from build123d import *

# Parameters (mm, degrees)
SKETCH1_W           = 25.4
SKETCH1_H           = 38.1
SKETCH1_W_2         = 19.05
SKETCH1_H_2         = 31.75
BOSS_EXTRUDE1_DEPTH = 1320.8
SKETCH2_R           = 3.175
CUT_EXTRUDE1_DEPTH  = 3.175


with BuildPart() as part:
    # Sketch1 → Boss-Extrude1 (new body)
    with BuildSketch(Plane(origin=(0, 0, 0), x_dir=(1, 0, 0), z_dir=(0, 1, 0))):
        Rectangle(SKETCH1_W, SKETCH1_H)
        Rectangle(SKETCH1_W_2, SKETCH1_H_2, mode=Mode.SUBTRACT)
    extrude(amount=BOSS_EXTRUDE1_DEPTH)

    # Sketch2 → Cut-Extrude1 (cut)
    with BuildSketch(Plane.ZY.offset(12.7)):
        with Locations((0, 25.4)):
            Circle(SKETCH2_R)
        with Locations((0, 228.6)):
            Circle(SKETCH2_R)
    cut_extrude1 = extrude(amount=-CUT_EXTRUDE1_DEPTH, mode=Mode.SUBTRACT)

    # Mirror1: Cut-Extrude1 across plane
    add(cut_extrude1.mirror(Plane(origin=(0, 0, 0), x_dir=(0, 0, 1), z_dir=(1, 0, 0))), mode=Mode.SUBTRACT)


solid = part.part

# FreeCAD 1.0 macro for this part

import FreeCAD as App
import Part
import Sketcher
Q = App.Units.Quantity


def add_polygon(sketch, points):
    """Adds a closed chain of lines whose ends are joined by coincident constraints."""
    first, n = sketch.GeometryCount, len(points)
    for a, b in zip(points, points[1:] + points[:1]):
        sketch.addGeometry(Part.LineSegment(App.Vector(*a, 0), App.Vector(*b, 0)), False)
    for i in range(n):
        sketch.addConstraint(Sketcher.Constraint("Coincident", first + i, 2, first + (i + 1) % n, 1))

doc = App.newDocument("Part")
body = doc.addObject("PartDesign::Body", "Body")

sketch1 = body.newObject("Sketcher::SketchObject", "Sketch")
sketch1.AttachmentSupport = (doc.getObject("XZ_Plane"), [""])
sketch1.MapMode = "FlatFace"
add_polygon(sketch1, [(-13, -19), (-13, 19), (13, 19), (13, -19)])
add_polygon(sketch1, [(10, 16), (-10, 16), (-10, -16), (10, -16)])
sketch1.addConstraint([
    Sketcher.Constraint("Vertical", 0),
    Sketcher.Constraint("Horizontal", 1),
    Sketcher.Constraint("Vertical", 2),
    Sketcher.Constraint("Horizontal", 3),
    Sketcher.Constraint("Horizontal", 4),
    Sketcher.Constraint("Vertical", 5),
    Sketcher.Constraint("Horizontal", 6),
    Sketcher.Constraint("Vertical", 7),
    Sketcher.Constraint("Symmetric", 0, 2, 2, 2, -1, 1),
    Sketcher.Constraint("Symmetric", 4, 2, 6, 2, -1, 1),
    Sketcher.Constraint("DistanceX", 1, 1, 1, 2, Q("1 in")),
    Sketcher.Constraint("DistanceY", 0, 1, 0, 2, Q("1.5 in")),
    Sketcher.Constraint("DistanceX", 4, 2, 4, 1, Q("0.75 in")),
    Sketcher.Constraint("DistanceY", 5, 2, 5, 1, Q("1.25 in")),
])
pad1 = body.newObject("PartDesign::Pad", "Pad")
pad1.Profile = sketch1
pad1.Length = Q("52 in")
pad1.Reversed = True

sketch2 = body.newObject("Sketcher::SketchObject", "Sketch001")
sketch2.AttachmentSupport = (doc.getObject("YZ_Plane"), [""])
sketch2.MapMode = "FlatFace"
sketch2.AttachmentOffset = App.Placement(App.Vector(0, 0, -0.5 * 25.4), App.Rotation())
sketch2.addGeometry([
    Part.Circle(App.Vector(25.4, 0, 0), App.Vector(0, 0, 1), 3.2),
    Part.Circle(App.Vector(228.6, 0, 0), App.Vector(0, 0, 1), 3.2),
], False)
sketch2.addConstraint([
    Sketcher.Constraint("Equal", 0, 1),
    Sketcher.Constraint("PointOnObject", 0, 3, -1),
    Sketcher.Constraint("PointOnObject", 1, 3, -1),
    Sketcher.Constraint("Diameter", 0, Q("0.25 in")),
    Sketcher.Constraint("DistanceX", -1, 1, 0, 3, Q("1 in")),
    Sketcher.Constraint("DistanceX", -1, 1, 1, 3, Q("9 in")),
])
pocket1 = body.newObject("PartDesign::Pocket", "Pocket")
pocket1.Profile = sketch2
pocket1.Length = Q("0.125 in")
pocket1.Reversed = True
doc.recompute()

mirrored = body.newObject("PartDesign::Mirrored", "Mirrored")
mirrored.Originals = [pocket1]
mirrored.MirrorPlane = (doc.getObject("YZ_Plane"), [""])
body.Tip = mirrored

doc.recompute()
